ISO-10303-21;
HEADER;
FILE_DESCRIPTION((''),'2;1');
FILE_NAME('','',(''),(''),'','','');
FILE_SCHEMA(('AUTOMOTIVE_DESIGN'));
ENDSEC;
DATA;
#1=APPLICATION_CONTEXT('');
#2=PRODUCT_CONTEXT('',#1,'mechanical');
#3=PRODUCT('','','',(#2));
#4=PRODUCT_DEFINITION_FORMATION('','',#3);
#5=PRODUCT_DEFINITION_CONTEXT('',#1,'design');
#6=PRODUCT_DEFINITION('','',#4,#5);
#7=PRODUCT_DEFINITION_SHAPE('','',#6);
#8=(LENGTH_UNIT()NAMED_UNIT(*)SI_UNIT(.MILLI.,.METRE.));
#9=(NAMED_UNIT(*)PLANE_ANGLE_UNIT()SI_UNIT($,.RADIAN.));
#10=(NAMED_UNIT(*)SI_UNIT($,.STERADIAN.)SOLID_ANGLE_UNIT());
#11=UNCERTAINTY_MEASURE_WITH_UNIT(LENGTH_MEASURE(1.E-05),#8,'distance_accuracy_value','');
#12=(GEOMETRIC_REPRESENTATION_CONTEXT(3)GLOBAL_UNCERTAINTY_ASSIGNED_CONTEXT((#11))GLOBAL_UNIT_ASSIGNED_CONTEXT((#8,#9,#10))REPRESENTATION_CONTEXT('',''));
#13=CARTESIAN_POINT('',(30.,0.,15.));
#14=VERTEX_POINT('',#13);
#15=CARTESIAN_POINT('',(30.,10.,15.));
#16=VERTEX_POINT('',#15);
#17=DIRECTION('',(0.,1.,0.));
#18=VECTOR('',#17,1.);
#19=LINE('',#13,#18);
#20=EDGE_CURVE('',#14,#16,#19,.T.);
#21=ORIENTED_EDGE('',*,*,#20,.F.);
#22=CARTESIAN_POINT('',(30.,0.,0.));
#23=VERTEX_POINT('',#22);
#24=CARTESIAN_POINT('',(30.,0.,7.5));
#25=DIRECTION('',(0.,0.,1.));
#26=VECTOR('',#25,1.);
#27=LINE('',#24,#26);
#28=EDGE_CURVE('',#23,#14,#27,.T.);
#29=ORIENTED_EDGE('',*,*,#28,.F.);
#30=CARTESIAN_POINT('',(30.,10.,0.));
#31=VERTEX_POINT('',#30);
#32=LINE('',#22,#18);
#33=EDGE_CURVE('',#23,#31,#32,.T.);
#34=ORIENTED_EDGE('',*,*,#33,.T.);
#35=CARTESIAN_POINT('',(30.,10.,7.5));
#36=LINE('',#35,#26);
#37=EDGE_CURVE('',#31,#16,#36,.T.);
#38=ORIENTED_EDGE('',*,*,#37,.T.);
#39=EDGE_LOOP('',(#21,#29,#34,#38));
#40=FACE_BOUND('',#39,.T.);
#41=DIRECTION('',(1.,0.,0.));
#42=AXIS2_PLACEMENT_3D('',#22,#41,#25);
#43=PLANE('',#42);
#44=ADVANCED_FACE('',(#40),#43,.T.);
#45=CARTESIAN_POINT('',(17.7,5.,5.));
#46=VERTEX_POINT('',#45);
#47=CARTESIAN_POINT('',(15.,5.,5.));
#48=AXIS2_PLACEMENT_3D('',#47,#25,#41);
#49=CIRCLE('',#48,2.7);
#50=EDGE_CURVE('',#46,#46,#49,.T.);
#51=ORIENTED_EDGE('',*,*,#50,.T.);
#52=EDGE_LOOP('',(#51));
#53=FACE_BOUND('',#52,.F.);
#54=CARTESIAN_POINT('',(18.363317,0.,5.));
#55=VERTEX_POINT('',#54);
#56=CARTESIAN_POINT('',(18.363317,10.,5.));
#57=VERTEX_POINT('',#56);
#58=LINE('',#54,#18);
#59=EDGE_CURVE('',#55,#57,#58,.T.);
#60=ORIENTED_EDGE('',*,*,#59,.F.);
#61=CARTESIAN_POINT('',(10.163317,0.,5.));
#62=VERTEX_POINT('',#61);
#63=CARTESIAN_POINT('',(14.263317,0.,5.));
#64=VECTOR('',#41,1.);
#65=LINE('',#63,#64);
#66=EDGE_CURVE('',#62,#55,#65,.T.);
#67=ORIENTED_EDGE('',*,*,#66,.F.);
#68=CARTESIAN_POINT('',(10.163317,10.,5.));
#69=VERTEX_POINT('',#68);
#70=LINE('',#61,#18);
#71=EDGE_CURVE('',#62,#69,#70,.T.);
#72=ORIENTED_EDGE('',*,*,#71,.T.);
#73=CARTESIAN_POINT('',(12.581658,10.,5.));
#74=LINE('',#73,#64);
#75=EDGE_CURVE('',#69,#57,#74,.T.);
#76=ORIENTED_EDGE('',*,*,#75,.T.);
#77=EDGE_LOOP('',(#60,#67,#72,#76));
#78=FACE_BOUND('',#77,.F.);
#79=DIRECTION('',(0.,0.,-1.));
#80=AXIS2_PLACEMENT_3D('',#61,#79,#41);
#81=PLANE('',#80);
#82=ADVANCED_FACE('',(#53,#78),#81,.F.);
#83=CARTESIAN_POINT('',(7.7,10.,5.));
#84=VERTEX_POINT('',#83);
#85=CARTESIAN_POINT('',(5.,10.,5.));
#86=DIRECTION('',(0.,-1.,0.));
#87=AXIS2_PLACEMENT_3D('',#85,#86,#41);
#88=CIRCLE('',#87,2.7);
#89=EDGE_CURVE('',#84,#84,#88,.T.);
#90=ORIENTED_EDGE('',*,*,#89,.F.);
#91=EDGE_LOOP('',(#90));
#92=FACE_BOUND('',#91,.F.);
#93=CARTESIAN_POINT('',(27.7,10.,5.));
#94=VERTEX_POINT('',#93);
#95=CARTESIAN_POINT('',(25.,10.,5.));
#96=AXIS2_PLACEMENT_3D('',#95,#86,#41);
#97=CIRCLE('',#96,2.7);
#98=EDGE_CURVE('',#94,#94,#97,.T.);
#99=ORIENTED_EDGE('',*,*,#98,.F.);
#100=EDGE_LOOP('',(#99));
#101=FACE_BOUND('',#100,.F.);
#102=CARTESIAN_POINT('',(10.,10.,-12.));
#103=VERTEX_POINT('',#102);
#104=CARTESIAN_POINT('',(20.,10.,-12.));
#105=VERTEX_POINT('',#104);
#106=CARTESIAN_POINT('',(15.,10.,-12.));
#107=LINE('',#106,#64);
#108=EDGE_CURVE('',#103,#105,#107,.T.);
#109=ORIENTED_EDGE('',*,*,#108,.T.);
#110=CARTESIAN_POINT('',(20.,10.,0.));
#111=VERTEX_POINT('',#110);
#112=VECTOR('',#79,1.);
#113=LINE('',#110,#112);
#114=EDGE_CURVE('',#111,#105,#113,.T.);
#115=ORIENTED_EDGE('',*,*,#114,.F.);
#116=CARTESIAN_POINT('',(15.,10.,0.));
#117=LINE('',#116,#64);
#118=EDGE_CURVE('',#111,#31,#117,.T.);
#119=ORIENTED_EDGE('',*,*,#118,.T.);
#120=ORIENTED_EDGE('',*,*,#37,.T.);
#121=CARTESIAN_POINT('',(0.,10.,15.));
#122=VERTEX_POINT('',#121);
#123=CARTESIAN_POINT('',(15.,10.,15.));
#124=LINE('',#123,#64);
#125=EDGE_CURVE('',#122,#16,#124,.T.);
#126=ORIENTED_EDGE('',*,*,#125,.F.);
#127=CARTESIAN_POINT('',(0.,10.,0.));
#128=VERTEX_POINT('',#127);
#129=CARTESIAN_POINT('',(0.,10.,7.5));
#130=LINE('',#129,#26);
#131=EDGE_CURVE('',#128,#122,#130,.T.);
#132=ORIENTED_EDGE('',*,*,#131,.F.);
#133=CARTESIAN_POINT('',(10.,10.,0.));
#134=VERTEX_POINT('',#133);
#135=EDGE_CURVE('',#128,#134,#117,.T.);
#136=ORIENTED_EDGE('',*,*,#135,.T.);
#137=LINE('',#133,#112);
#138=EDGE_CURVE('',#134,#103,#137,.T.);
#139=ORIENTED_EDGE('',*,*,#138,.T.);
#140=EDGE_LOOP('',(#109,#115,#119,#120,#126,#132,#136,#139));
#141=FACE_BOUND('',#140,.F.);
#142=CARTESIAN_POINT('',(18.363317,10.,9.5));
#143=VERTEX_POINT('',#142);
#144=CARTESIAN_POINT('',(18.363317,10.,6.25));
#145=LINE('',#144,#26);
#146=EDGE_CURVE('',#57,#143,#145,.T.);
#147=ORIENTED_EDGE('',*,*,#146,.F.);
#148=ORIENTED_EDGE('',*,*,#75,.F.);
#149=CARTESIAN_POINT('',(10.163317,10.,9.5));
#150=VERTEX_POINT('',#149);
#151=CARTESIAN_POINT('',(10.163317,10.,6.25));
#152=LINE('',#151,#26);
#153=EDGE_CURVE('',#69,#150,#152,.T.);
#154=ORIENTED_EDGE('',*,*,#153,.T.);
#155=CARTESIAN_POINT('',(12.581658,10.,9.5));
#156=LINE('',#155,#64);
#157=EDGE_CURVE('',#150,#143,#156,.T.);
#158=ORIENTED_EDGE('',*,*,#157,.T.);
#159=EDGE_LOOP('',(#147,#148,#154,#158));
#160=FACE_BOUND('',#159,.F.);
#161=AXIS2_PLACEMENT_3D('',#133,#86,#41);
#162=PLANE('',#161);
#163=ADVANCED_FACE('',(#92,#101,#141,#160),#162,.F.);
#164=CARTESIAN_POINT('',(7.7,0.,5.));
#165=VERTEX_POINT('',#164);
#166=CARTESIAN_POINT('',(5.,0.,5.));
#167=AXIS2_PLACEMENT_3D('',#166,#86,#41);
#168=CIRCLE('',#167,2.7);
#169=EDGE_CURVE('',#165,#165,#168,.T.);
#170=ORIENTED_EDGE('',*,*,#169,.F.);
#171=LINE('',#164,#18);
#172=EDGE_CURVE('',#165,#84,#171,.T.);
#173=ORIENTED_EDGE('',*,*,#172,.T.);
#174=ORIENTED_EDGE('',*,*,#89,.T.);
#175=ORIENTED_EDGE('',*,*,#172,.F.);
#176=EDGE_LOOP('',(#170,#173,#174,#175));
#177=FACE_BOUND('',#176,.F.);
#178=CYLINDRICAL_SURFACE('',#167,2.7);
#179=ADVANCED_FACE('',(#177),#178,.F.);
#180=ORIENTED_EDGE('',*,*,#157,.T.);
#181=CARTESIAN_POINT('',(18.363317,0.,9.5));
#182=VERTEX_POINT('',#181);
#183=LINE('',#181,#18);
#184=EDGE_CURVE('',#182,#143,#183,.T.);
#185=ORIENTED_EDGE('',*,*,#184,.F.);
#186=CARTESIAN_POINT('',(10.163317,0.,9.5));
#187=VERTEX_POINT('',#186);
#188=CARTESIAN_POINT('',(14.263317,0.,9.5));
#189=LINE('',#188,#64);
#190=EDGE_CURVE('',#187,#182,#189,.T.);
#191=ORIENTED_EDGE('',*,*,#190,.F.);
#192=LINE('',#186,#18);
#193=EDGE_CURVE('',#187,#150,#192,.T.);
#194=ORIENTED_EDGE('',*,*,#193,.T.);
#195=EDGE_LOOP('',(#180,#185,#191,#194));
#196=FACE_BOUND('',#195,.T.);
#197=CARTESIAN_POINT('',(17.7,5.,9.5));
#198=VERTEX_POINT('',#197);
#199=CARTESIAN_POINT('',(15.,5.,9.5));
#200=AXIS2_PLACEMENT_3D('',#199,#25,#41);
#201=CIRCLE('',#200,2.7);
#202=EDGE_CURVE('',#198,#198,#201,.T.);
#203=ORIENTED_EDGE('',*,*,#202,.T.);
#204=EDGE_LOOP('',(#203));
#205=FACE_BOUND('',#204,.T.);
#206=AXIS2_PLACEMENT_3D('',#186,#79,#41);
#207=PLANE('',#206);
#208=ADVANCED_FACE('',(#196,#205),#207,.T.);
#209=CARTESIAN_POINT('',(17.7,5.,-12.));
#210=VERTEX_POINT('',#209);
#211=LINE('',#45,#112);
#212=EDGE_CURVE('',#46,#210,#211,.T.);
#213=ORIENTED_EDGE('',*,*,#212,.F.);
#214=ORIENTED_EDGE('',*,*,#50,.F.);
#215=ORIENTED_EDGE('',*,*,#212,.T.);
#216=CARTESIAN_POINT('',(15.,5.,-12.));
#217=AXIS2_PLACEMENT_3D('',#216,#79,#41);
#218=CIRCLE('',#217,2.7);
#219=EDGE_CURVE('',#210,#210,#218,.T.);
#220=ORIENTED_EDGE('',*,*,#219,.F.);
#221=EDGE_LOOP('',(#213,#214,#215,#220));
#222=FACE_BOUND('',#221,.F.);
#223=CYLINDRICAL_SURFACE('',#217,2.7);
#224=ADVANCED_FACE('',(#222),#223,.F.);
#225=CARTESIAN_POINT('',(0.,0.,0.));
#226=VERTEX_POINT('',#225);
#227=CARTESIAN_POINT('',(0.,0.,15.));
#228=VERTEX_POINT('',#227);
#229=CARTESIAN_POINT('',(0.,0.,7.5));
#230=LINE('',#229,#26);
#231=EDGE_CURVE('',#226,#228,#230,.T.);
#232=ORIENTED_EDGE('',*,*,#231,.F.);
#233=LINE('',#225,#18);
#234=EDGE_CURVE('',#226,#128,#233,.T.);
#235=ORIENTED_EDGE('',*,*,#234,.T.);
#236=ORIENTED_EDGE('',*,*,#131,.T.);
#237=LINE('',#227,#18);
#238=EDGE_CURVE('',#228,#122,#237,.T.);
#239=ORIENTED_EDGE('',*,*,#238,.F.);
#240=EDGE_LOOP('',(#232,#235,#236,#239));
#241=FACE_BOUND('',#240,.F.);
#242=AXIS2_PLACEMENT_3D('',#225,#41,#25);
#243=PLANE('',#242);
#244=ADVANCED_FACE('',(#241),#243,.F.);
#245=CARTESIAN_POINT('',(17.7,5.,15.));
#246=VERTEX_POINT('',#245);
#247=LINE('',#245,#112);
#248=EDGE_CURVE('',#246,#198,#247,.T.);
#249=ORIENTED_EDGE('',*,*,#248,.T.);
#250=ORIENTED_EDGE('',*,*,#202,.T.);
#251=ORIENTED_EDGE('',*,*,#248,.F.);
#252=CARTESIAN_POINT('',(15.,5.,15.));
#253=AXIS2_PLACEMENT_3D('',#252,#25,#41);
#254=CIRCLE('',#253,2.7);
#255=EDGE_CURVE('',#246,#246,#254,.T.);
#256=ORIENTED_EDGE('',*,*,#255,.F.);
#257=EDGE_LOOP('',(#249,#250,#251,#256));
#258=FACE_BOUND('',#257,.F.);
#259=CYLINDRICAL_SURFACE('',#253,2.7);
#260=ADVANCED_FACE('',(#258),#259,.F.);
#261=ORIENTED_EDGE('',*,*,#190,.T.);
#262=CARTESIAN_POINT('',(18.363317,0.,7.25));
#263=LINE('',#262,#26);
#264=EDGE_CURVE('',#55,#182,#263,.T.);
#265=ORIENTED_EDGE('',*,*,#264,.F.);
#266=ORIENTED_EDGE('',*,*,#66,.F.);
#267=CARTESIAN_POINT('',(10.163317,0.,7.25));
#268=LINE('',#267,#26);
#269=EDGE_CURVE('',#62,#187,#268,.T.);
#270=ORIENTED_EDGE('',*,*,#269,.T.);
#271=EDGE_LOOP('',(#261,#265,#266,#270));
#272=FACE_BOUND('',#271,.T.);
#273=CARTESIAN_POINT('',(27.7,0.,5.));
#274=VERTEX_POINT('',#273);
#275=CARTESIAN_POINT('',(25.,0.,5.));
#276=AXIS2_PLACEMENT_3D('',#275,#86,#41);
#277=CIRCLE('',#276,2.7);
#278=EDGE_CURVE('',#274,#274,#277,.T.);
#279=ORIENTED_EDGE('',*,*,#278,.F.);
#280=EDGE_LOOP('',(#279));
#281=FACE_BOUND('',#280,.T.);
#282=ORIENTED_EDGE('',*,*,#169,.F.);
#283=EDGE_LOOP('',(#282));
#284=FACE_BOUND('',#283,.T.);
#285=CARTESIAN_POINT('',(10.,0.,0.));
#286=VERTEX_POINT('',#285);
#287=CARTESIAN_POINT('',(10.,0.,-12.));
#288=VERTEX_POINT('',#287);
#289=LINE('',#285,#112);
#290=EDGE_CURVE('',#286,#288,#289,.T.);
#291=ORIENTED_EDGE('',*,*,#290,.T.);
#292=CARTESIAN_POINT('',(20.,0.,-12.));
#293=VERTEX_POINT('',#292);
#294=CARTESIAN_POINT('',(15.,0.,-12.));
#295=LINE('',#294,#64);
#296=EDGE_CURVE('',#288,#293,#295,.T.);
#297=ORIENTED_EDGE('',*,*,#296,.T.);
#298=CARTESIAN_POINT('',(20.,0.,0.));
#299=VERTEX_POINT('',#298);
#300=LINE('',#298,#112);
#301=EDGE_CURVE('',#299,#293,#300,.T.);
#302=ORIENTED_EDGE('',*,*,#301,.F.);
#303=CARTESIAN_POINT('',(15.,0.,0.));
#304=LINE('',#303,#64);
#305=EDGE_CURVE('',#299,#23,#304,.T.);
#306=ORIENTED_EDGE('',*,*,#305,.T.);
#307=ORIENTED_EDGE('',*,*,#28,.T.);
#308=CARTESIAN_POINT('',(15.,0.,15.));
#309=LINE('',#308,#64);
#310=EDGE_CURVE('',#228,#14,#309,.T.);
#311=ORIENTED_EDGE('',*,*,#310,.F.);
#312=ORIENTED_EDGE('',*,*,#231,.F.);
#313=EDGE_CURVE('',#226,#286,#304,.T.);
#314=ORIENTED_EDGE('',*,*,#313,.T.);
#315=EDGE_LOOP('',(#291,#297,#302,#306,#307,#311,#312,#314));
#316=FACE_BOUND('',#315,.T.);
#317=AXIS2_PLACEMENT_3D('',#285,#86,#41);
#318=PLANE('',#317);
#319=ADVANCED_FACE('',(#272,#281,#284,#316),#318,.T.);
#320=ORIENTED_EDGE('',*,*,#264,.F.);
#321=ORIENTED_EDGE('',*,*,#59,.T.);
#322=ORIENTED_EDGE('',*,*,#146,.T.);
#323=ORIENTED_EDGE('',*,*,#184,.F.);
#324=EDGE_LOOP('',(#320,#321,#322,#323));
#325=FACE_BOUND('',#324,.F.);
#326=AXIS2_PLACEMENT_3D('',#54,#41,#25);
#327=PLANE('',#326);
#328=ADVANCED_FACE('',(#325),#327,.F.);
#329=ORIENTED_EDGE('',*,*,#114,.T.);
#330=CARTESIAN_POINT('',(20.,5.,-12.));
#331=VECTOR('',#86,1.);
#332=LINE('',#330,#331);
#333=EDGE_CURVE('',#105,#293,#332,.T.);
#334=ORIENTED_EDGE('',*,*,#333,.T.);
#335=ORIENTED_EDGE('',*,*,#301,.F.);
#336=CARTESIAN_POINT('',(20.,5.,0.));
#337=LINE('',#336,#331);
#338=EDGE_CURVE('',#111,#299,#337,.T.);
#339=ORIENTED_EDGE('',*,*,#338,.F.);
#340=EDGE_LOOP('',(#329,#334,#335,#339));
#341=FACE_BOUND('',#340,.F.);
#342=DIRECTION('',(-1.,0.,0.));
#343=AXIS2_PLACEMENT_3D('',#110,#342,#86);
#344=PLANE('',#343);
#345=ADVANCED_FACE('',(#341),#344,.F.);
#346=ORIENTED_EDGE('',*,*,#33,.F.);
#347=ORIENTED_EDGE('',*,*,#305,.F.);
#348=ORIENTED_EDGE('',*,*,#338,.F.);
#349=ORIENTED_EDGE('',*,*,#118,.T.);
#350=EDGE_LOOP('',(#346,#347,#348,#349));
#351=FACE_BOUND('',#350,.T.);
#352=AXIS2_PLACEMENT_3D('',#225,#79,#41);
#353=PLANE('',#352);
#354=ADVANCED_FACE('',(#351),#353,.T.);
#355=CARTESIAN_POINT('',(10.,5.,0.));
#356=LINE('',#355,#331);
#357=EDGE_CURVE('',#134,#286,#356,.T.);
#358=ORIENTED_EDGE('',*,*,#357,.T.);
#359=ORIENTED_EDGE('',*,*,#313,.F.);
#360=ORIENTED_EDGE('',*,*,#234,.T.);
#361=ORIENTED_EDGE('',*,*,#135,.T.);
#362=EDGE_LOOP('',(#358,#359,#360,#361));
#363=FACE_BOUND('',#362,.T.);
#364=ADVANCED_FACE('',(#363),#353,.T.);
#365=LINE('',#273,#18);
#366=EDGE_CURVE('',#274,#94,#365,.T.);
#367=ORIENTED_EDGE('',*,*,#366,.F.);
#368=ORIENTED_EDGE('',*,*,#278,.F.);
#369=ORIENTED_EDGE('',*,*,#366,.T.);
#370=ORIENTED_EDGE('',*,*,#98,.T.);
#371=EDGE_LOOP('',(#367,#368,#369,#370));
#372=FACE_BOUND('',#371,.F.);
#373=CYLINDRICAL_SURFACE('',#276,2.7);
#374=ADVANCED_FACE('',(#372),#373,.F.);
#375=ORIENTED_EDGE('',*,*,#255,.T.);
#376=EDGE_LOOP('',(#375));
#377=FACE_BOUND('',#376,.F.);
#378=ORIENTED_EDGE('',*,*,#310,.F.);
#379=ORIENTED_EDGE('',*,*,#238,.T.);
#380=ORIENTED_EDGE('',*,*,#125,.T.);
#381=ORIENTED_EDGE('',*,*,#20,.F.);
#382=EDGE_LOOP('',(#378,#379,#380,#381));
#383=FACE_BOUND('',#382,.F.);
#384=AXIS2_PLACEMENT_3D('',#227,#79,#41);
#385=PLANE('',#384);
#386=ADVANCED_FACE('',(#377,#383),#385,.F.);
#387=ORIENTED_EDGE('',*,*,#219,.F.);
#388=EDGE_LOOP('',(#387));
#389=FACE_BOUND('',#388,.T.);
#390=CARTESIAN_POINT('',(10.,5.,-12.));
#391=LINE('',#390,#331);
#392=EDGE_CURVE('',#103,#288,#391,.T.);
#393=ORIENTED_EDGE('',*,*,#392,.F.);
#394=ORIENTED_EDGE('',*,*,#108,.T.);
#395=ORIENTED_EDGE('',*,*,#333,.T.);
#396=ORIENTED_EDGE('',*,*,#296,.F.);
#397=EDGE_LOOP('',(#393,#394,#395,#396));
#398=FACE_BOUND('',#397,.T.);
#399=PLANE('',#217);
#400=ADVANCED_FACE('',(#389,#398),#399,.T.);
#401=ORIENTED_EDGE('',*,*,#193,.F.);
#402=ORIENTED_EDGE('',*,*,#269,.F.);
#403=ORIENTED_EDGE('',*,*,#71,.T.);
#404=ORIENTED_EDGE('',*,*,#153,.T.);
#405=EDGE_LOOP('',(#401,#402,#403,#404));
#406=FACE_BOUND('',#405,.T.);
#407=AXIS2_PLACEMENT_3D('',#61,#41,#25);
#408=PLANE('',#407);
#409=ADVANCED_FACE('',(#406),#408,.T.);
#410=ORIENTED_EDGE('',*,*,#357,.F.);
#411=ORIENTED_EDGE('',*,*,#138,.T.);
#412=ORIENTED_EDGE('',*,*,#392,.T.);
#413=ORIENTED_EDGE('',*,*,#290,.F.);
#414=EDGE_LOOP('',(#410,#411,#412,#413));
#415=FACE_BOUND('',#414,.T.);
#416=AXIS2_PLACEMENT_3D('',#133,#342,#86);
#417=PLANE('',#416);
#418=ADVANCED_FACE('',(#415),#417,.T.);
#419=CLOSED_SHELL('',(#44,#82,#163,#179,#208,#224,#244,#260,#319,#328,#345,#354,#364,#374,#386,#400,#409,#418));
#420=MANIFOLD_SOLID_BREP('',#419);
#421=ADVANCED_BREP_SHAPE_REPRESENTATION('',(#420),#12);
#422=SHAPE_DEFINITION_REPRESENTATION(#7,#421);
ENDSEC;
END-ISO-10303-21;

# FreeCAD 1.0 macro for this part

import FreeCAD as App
import Part
import Sketcher

V = App.Vector


def add_polygon(sketch, points):
    """Adds a closed chain of lines whose ends are joined by coincident constraints."""
    first, n = sketch.GeometryCount, len(points)
    for a, b in zip(points, points[1:] + points[:1]):
        sketch.addGeometry(Part.LineSegment(App.Vector(*a, 0), App.Vector(*b, 0)), False)
    for i in range(n):
        sketch.addConstraint(Sketcher.Constraint("Coincident", first + i, 2, first + (i + 1) % n, 1))

doc = App.newDocument("Part")
body = doc.addObject("PartDesign::Body", "Body")

sketch1 = body.newObject("Sketcher::SketchObject", "Sketch")
sketch1.AttachmentSupport = (doc.getObject("XY_Plane"), [""])
sketch1.MapMode = "FlatFace"
add_polygon(sketch1, [(0, 15), (0, 0), (30, 0), (30, 15)])
sketch1.addGeometry(Part.Circle(V(5, 5, 0), V(0, 0, 1), 2.7), False)
sketch1.addGeometry(Part.Circle(V(25, 5, 0), V(0, 0, 1), 2.7), False)
sketch1.addConstraint([
    Sketcher.Constraint("Vertical", 0),
    Sketcher.Constraint("Horizontal", 1),
    Sketcher.Constraint("Vertical", 2),
    Sketcher.Constraint("Horizontal", 3),
    Sketcher.Constraint("Coincident", 0, 2, -1, 1),
    Sketcher.Constraint("Equal", 4, 5),
    Sketcher.Constraint("Horizontal", 4, 3, 5, 3),
    Sketcher.Constraint("Diameter", 4, 5.4),
    Sketcher.Constraint("DistanceX", 1, 1, 1, 2, 30.0),
    Sketcher.Constraint("DistanceY", 0, 2, 0, 1, 15.0),
    Sketcher.Constraint("DistanceX", -1, 1, 4, 3, 5.0),
    Sketcher.Constraint("DistanceY", -1, 1, 4, 3, 5.0),
    Sketcher.Constraint("DistanceX", -1, 1, 5, 3, 25.0),
])
pad1 = body.newObject("PartDesign::Pad", "Pad")
pad1.Profile = sketch1
pad1.Length = 10
pad1.Reversed = True
body2 = doc.addObject("PartDesign::Body", "Body001")
doc.recompute()

body.Placement = App.Placement(V(0, 0, 0), App.Rotation(V(1, 0, 0), 90))
boolean = body2.newObject("PartDesign::Boolean", "Boolean")
boolean.Type = "Fuse"
boolean.addObjects([body])

sketch2 = body2.newObject("Sketcher::SketchObject", "Sketch001")
sketch2.AttachmentSupport = (doc.getObject("XY_Plane001"), [""])
sketch2.MapMode = "FlatFace"
sketch2.AttachmentOffset = App.Placement(V(0, 0, 15), App.Rotation())
sketch2.addGeometry(Part.Circle(V(15, 5, 0), V(0, 0, 1), 2.7), False)
sketch2.addConstraint([
    Sketcher.Constraint("Diameter", 0, 5.4),
    Sketcher.Constraint("DistanceX", -1, 1, 0, 3, 15.0),
    Sketcher.Constraint("DistanceY", -1, 1, 0, 3, 5.0),
])
pocket1 = body2.newObject("PartDesign::Pocket", "Pocket")
pocket1.Profile = sketch2
pocket1.Type = "ThroughAll"

sketch3 = body2.newObject("Sketcher::SketchObject", "Sketch002")
sketch3.AttachmentSupport = (doc.getObject("XZ_Plane001"), [""])
sketch3.MapMode = "FlatFace"
add_polygon(sketch3, [(10.2, 9.5), (10.2, 5), (18.4, 5), (18.4, 9.5)])
sketch3.addConstraint([
    Sketcher.Constraint("Vertical", 0),
    Sketcher.Constraint("Horizontal", 1),
    Sketcher.Constraint("Vertical", 2),
    Sketcher.Constraint("Horizontal", 3),
    Sketcher.Constraint("DistanceX", 1, 1, 1, 2, 8.2),
    Sketcher.Constraint("DistanceY", 0, 2, 0, 1, 4.5),
    Sketcher.Constraint("DistanceY", -1, 1, 0, 2, 5.0),
    Sketcher.Constraint("DistanceX", -1, 1, 0, 2, 10.163317),
])
pocket2 = body2.newObject("PartDesign::Pocket", "Pocket001")
pocket2.Profile = sketch3
pocket2.Type = "ThroughAll"

sketch4 = body2.newObject("Sketcher::SketchObject", "Sketch003")
sketch4.AttachmentSupport = (doc.getObject("XY_Plane001"), [""])
sketch4.MapMode = "FlatFace"
add_polygon(sketch4, [(10, 0), (10, 10), (20, 10), (20, 0)])
sketch4.addConstraint([
    Sketcher.Constraint("Vertical", 0),
    Sketcher.Constraint("Horizontal", 1),
    Sketcher.Constraint("Vertical", 2),
    Sketcher.Constraint("Horizontal", 3),
    Sketcher.Constraint("PointOnObject", 2, 2, -1),
    Sketcher.Constraint("Equal", 3, 0),
    Sketcher.Constraint("DistanceX", 1, 1, 1, 2, 10.0),
    Sketcher.Constraint("DistanceX", -1, 1, 0, 2, 10.0),
])
pad2 = body2.newObject("PartDesign::Pad", "Pad001")
pad2.Profile = sketch4
pad2.Length = 12
pad2.Reversed = True

sketch5 = body2.newObject("Sketcher::SketchObject", "Sketch004")
sketch5.AttachmentSupport = (doc.getObject("XY_Plane001"), [""])
sketch5.MapMode = "FlatFace"
sketch5.AttachmentOffset = App.Placement(V(0, 0, -12), App.Rotation())
sketch5.addGeometry(Part.Circle(V(15, 5, 0), V(0, 0, 1), 2.7), False)
sketch5.addConstraint([
    Sketcher.Constraint("Diameter", 0, 5.4),
    Sketcher.Constraint("DistanceX", -1, 1, 0, 3, 15.0),
    Sketcher.Constraint("DistanceY", -1, 1, 0, 3, 5.0),
])
pocket3 = body2.newObject("PartDesign::Pocket", "Pocket002")
pocket3.Profile = sketch5
pocket3.Type = "ThroughAll"
pocket3.Reversed = True

doc.recompute()
